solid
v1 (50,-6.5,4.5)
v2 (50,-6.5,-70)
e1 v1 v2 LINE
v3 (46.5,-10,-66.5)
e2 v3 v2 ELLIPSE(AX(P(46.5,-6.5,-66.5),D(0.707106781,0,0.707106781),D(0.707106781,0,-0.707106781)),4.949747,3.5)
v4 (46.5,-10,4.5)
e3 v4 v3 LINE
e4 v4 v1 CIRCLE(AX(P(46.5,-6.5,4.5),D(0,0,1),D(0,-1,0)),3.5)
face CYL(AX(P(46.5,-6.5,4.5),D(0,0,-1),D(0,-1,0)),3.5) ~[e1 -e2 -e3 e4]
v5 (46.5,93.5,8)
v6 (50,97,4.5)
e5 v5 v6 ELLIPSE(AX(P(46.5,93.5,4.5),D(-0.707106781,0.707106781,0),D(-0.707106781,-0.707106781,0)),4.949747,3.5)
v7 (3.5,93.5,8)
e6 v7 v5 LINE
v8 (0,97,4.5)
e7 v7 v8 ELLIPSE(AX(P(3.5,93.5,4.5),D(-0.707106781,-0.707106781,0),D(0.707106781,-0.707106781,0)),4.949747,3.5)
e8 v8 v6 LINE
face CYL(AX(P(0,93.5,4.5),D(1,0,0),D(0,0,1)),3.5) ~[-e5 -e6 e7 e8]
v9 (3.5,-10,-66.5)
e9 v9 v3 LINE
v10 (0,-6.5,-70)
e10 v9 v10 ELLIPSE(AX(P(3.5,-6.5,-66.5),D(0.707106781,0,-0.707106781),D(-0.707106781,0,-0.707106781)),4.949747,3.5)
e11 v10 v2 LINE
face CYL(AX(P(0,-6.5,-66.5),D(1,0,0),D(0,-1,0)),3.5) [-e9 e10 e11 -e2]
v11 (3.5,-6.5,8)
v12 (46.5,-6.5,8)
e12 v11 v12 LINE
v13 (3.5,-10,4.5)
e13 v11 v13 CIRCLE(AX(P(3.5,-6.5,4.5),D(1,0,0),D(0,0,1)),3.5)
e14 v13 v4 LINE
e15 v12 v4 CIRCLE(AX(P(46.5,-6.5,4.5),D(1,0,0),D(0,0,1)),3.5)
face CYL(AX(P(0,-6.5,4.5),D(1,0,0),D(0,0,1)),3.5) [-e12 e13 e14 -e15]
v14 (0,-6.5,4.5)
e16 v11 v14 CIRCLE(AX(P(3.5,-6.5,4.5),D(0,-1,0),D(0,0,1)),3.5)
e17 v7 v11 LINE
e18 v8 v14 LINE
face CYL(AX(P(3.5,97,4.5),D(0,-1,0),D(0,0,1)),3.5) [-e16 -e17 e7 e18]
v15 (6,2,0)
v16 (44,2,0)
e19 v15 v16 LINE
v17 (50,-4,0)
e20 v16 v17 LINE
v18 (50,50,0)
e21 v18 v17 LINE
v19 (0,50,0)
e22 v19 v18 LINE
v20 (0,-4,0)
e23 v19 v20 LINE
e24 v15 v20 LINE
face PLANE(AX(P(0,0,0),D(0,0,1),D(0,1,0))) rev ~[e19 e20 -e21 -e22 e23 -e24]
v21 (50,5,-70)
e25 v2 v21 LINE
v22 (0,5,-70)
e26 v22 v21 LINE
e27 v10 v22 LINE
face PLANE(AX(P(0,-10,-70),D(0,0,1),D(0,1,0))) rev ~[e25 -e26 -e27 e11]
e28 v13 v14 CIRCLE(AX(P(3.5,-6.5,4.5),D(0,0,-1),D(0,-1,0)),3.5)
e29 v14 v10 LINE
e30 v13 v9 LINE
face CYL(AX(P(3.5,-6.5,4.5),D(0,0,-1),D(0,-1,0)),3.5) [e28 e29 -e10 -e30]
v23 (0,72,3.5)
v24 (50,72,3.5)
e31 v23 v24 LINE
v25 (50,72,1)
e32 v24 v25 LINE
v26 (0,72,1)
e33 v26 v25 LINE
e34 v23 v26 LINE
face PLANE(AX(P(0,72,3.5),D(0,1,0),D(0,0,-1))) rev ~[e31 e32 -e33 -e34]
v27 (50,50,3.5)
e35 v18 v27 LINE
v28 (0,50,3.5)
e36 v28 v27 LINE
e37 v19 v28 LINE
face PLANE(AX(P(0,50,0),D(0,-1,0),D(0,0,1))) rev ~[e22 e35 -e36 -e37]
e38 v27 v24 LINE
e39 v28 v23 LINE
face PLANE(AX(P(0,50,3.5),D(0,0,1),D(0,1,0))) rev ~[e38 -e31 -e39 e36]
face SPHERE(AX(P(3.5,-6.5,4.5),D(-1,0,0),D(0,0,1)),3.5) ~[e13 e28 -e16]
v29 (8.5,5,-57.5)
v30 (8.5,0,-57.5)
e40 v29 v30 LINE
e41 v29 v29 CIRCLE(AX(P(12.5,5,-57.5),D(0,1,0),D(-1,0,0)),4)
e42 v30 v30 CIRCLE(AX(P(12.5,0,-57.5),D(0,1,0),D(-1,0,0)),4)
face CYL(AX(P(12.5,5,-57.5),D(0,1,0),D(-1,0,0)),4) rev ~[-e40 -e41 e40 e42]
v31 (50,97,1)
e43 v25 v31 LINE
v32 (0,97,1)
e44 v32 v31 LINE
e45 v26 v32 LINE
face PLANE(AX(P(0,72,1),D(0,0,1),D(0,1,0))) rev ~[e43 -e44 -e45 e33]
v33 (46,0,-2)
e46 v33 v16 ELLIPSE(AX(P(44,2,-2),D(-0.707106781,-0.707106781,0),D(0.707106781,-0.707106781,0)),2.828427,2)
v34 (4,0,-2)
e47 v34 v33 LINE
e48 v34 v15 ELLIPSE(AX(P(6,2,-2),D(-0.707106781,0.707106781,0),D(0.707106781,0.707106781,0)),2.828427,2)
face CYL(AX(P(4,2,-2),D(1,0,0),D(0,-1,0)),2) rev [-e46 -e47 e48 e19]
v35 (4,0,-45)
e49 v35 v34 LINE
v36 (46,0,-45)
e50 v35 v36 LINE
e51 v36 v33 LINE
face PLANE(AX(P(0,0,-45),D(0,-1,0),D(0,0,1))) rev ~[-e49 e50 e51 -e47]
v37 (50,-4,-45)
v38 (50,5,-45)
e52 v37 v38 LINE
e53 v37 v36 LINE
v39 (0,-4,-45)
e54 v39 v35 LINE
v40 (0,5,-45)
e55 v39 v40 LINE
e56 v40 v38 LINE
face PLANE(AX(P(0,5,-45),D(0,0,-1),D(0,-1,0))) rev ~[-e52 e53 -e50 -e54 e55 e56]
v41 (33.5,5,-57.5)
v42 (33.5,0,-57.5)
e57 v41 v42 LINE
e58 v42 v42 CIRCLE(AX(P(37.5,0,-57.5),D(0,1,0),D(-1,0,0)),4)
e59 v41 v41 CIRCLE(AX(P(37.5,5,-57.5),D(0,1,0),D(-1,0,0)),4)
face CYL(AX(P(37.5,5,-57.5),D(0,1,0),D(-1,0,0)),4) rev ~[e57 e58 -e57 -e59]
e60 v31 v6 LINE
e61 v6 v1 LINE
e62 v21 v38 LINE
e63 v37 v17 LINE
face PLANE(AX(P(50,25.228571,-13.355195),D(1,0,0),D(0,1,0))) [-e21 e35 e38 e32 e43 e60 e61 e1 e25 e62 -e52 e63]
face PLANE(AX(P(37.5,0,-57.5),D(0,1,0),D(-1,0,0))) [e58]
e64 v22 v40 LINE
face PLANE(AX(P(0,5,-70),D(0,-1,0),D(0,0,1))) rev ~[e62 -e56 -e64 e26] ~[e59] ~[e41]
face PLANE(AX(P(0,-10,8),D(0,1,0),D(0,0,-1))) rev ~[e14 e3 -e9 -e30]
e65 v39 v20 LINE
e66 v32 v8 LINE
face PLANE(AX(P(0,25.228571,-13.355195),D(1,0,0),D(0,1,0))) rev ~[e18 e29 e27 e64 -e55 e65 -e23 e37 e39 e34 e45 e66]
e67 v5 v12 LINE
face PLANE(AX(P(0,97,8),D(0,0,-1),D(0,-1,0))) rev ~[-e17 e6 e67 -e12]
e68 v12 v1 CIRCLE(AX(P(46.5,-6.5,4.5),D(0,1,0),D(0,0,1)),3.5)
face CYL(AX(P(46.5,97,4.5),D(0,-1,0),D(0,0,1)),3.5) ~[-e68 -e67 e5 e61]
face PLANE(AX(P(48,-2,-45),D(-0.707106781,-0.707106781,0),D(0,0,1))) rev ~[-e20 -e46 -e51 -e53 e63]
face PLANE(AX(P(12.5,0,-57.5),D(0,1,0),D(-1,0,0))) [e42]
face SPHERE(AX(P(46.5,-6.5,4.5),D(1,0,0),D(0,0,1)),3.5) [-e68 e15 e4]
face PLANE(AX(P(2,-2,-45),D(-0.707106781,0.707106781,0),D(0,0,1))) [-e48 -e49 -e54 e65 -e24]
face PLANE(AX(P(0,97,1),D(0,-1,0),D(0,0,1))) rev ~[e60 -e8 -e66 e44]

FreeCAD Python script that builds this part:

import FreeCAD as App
import Part
import Sketcher
from FreeCAD import Vector
Q = App.Units.Quantity


def edges_at(feature, points):
    """Names of the edges that pass closest to the given points."""
    edges = feature.Shape.Edges
    near = lambda p: min(range(len(edges)), key=lambda i: edges[i].distToShape(Part.Vertex(*p))[0])
    return sorted({f"Edge{near(p) + 1}" for p in points})


def add_polygon(sketch, points):
    """Adds a closed chain of lines whose ends are joined by coincident constraints."""
    first, n = sketch.GeometryCount, len(points)
    for a, b in zip(points, points[1:] + points[:1]):
        sketch.addGeometry(Part.LineSegment(App.Vector(*a, 0), App.Vector(*b, 0)), False)
    for i in range(n):
        sketch.addConstraint(Sketcher.Constraint("Coincident", first + i, 2, first + (i + 1) % n, 1))

doc = App.newDocument("Part")
body = doc.addObject("PartDesign::Body", "Body")

# Sketch on YZ plane
sketch1 = body.newObject("Sketcher::SketchObject", "Sketch")
sketch1.AttachmentSupport = (doc.getObject("YZ_Plane"), [""])
sketch1.MapMode = "FlatFace"
add_polygon(sketch1, [(97, 8), (-10, 8), (-10, -70), (5, -70), (5, -45), (0, -45), (0, 0), (50, 0), (50, 3.5), (72, 3.5), (72, 1), (97, 1)])  # lines 0-11
sketch1.addConstraint([
    Sketcher.Constraint("Horizontal", 0),
    Sketcher.Constraint("Vertical", 1),
    Sketcher.Constraint("Horizontal", 2),
    Sketcher.Constraint("Vertical", 3),
    Sketcher.Constraint("Horizontal", 4),
    Sketcher.Constraint("Vertical", 5),
    Sketcher.Constraint("Horizontal", 6),
    Sketcher.Constraint("Vertical", 7),
    Sketcher.Constraint("Horizontal", 8),
    Sketcher.Constraint("Vertical", 9),
    Sketcher.Constraint("Horizontal", 10),
    Sketcher.Constraint("Vertical", 11),
    Sketcher.Constraint("Coincident", 5, 2, -1, 1),
    Sketcher.Constraint("Equal", 10, 3),
    Sketcher.Constraint("DistanceX", 0, 2, 0, 1, Q("107 mm")),
    Sketcher.Constraint("DistanceX", 2, 1, 2, 2, Q("15 mm")),
    Sketcher.Constraint("DistanceX", 4, 2, 4, 1, Q("5 mm")),
    Sketcher.Constraint("DistanceX", 6, 1, 6, 2, Q("50 mm")),
    Sketcher.Constraint("DistanceX", 8, 1, 8, 2, Q("22 mm")),
    Sketcher.Constraint("DistanceY", 1, 2, 1, 1, Q("78 mm")),
    Sketcher.Constraint("DistanceY", 5, 1, 5, 2, Q("45 mm")),
    Sketcher.Constraint("DistanceY", 11, 1, 11, 2, Q("7 mm")),
    Sketcher.Constraint("DistanceY", 7, 1, 7, 2, Q("3.5 mm")),
])
pad1 = body.newObject("PartDesign::Pad", "Pad")
pad1.Profile = sketch1
pad1.Length = 50
doc.recompute()

fillet = body.newObject("PartDesign::Fillet", "Fillet")
fillet.Base = (pad1, edges_at(pad1, [(25, -10, 8)]))
fillet.Radius = 3.5
doc.recompute()

fillet2 = body.newObject("PartDesign::Fillet", "Fillet001")
fillet2.Base = (fillet, edges_at(fillet, [
    (50, 45.25, 8),
    (25, 97, 8),
    (0, 45.25, 8),
    (25, -10, -70),
]))
fillet2.Radius = 3.5

# Sketch on XZ plane
sketch2 = body.newObject("Sketcher::SketchObject", "Sketch001")
sketch2.AttachmentSupport = (doc.getObject("XZ_Plane"), [""])
sketch2.MapMode = "FlatFace"
sketch2.AttachmentOffset = App.Placement(Vector(0, 0, -5), App.Rotation())
sketch2.addGeometry([
    Part.Circle(Vector(37.5, -57.5, 0), Vector(0, 0, 1), 4),
    Part.Circle(Vector(12.5, -57.5, 0), Vector(0, 0, 1), 4),
], False)
sketch2.addConstraint([
    Sketcher.Constraint("Equal", 0, 1),
    Sketcher.Constraint("Horizontal", 0, 3, 1, 3),
    Sketcher.Constraint("Diameter", 0, Q("8 mm")),
    Sketcher.Constraint("DistanceX", 1, 3, 0, 3, Q("25 mm")),
    Sketcher.Constraint("DistanceX", -1, 1, 0, 3, Q("37.5 mm")),
    Sketcher.Constraint("DistanceY", 0, 3, -1, 1, Q("57.5 mm")),
])
pocket1 = body.newObject("PartDesign::Pocket", "Pocket")
pocket1.Profile = sketch2
pocket1.Length = 5
pocket1.Reversed = True
doc.recompute()

chamfer = body.newObject("PartDesign::Chamfer", "Chamfer")
chamfer.Base = (pocket1, edges_at(pocket1, [(50, 0, -22.5), (0, 0, -22.5)]))
chamfer.Size = 4
doc.recompute()

fillet3 = body.newObject("PartDesign::Fillet", "Fillet002")
fillet3.Base = (chamfer, edges_at(chamfer, [(25, 0, 0)]))
fillet3.Radius = 2

doc.recompute()
